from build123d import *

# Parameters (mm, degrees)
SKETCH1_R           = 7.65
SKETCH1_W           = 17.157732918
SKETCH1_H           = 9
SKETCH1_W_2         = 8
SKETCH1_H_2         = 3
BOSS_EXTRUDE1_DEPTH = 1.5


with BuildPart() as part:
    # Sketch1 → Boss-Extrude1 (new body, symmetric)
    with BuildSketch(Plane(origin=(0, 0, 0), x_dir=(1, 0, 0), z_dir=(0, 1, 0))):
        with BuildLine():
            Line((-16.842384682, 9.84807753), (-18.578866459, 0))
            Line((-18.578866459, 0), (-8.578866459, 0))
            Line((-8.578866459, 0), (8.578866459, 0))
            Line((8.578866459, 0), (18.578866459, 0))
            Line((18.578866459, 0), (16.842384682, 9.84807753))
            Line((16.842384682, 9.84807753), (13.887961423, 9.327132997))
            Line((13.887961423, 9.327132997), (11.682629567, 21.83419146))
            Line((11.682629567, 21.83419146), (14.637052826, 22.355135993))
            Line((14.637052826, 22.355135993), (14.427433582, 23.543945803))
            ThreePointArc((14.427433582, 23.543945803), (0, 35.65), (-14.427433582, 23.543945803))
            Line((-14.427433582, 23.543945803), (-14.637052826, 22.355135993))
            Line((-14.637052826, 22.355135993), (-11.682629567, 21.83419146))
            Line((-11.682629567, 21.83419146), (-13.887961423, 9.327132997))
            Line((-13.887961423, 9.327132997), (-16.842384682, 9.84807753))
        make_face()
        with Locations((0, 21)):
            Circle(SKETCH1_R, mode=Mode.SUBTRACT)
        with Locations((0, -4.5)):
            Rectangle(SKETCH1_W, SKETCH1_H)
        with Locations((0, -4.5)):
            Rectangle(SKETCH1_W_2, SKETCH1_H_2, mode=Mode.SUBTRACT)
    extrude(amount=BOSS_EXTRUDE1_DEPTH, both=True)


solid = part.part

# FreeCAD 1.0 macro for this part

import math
import FreeCAD as App
import Part
import Sketcher
from FreeCAD import Vector
Q = App.Units.Quantity

doc = App.newDocument("Part")
body = doc.addObject("PartDesign::Body", "Body")

# Sketch on XZ plane
sketch1 = body.newObject("Sketcher::SketchObject", "Sketch")
sketch1.AttachmentSupport = (doc.getObject("XZ_Plane"), [""])
sketch1.MapMode = "FlatFace"
sketch1.addGeometry([
    Part.LineSegment(Vector(-16.8, -9.8, 0), Vector(-18.6, 0, 0)),  # 0
    Part.LineSegment(Vector(-18.6, 0, 0), Vector(-8.6, 0, 0)),  # 1
    Part.LineSegment(Vector(-8.6, 0, 0), Vector(-8.6, 9, 0)),  # 2
    Part.LineSegment(Vector(-8.6, 9, 0), Vector(8.6, 9, 0)),  # 3
    Part.LineSegment(Vector(8.6, 9, 0), Vector(8.6, 0, 0)),  # 4
    Part.LineSegment(Vector(8.6, 0, 0), Vector(18.6, 0, 0)),  # 5
    Part.LineSegment(Vector(18.6, 0, 0), Vector(16.8, -9.8, 0)),  # 6
    Part.LineSegment(Vector(16.8, -9.8, 0), Vector(13.9, -9.3, 0)),  # 7
    Part.LineSegment(Vector(13.9, -9.3, 0), Vector(11.7, -21.8, 0)),  # 8
    Part.LineSegment(Vector(11.7, -21.8, 0), Vector(14.6, -22.4, 0)),  # 9
    Part.LineSegment(Vector(14.6, -22.4, 0), Vector(14.4, -23.5, 0)),  # 10
    Part.ArcOfCircle(Part.Circle(Vector(0, -21, 0), Vector(0, 0, 1), 14.7), math.radians(-170), math.radians(-10)),  # 11
    Part.LineSegment(Vector(-14.4, -23.5, 0), Vector(-14.6, -22.4, 0)),  # 12
    Part.LineSegment(Vector(-14.6, -22.4, 0), Vector(-11.7, -21.8, 0)),  # 13
    Part.LineSegment(Vector(-11.7, -21.8, 0), Vector(-13.9, -9.3, 0)),  # 14
    Part.LineSegment(Vector(-13.9, -9.3, 0), Vector(-16.8, -9.8, 0)),  # 15
    Part.LineSegment(Vector(4, 6, 0), Vector(-4, 6, 0)),  # 16
    Part.LineSegment(Vector(-4, 6, 0), Vector(-4, 3, 0)),  # 17
    Part.LineSegment(Vector(-4, 3, 0), Vector(4, 3, 0)),  # 18
    Part.LineSegment(Vector(4, 3, 0), Vector(4, 6, 0)),  # 19
    Part.Circle(Vector(0, -21, 0), Vector(0, 0, 1), 7.7),  # 20
], False)
sketch1.addConstraint([
    Sketcher.Constraint("Coincident", 0, 2, 1, 1),
    Sketcher.Constraint("Coincident", 1, 2, 2, 1),
    Sketcher.Constraint("Coincident", 2, 2, 3, 1),
    Sketcher.Constraint("Coincident", 3, 2, 4, 1),
    Sketcher.Constraint("Coincident", 4, 2, 5, 1),
    Sketcher.Constraint("Coincident", 5, 2, 6, 1),
    Sketcher.Constraint("Coincident", 6, 2, 7, 1),
    Sketcher.Constraint("Coincident", 7, 2, 8, 1),
    Sketcher.Constraint("Coincident", 8, 2, 9, 1),
    Sketcher.Constraint("Coincident", 9, 2, 10, 1),
    Sketcher.Constraint("Tangent", 10, 2, 11, 2),
    Sketcher.Constraint("Tangent", 11, 1, 12, 1),
    Sketcher.Constraint("Coincident", 12, 2, 13, 1),
    Sketcher.Constraint("Coincident", 13, 2, 14, 1),
    Sketcher.Constraint("Coincident", 14, 2, 15, 1),
    Sketcher.Constraint("Coincident", 15, 2, 0, 1),
    Sketcher.Constraint("Coincident", 16, 2, 17, 1),
    Sketcher.Constraint("Coincident", 17, 2, 18, 1),
    Sketcher.Constraint("Coincident", 18, 2, 19, 1),
    Sketcher.Constraint("Coincident", 19, 2, 16, 1),
    Sketcher.Constraint("Horizontal", 1),
    Sketcher.Constraint("Vertical", 2),
    Sketcher.Constraint("Horizontal", 3),
    Sketcher.Constraint("Vertical", 4),
    Sketcher.Constraint("Horizontal", 5),
    Sketcher.Constraint("Horizontal", 16),
    Sketcher.Constraint("Vertical", 17),
    Sketcher.Constraint("Horizontal", 18),
    Sketcher.Constraint("Vertical", 19),
    Sketcher.Constraint("Coincident", 20, 3, 11, 3),
    Sketcher.Constraint("Symmetric", 1, 2, 4, 2, -1, 1),
    Sketcher.Constraint("Symmetric", 0, 2, 5, 2, -2),
    Sketcher.Constraint("Symmetric", 10, 2, 11, 1, -2),
    Sketcher.Constraint("Symmetric", 8, 2, 13, 2, -2),
    Sketcher.Constraint("Symmetric", 7, 2, 14, 2, -2),
    Sketcher.Constraint("Symmetric", 6, 2, 15, 2, -2),
    Sketcher.Constraint("Perpendicular", 6, 7),
    Sketcher.Constraint("Perpendicular", 7, 8),
    Sketcher.Constraint("Perpendicular", 8, 9),
    Sketcher.Constraint("Perpendicular", 9, 10),
    Sketcher.Constraint("Perpendicular", 12, 13),
    Sketcher.Constraint("Equal", 7, 9),
    Sketcher.Constraint("Diameter", 20, 15.3),
    Sketcher.Constraint("DistanceX", 1, 1, 1, 2, 10.0),
    Sketcher.Constraint("DistanceX", 16, 2, 16, 1, 8.0),
    Sketcher.Constraint("DistanceY", 2, 1, 2, 2, 9.0),
    Sketcher.Constraint("DistanceY", 17, 2, 17, 1, 3.0),
    Sketcher.Constraint("Angle", 0, Q("100 deg")),
    Sketcher.Constraint("Radius", 11, 14.65),
    Sketcher.Constraint("Distance", 0, 10.0),
    Sketcher.Constraint("Distance", 7, 3.0),
    Sketcher.Constraint("DistanceY", 11, 3, -1, 1, 21.0),
    Sketcher.Constraint("DistanceX", 16, 2, -1, 1, 4.0),
    Sketcher.Constraint("DistanceY", -1, 1, 16, 2, 6.0),
    Sketcher.Constraint("Distance", 8, 12.7),
])
pad1 = body.newObject("PartDesign::Pad", "Pad")
pad1.Profile = sketch1
pad1.Length = 3
pad1.Midplane = True

doc.recompute()
